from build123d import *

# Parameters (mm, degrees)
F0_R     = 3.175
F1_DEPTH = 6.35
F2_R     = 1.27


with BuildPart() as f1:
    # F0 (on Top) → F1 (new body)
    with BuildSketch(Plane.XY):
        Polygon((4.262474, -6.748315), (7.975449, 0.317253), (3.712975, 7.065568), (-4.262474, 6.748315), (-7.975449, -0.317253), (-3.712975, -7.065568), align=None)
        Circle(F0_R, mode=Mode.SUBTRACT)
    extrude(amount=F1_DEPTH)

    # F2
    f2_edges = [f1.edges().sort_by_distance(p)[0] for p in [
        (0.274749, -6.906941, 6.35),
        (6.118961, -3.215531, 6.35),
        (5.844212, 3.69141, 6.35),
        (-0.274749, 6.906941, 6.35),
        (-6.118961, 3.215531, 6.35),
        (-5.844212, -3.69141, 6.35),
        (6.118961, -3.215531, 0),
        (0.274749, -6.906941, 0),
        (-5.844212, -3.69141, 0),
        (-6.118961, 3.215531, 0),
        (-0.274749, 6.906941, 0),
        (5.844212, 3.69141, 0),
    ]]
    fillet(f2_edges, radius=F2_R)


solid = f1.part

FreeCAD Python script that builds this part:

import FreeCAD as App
import Part
import Sketcher
from FreeCAD import Vector
Q = App.Units.Quantity


def edges_at(feature, points):
    """Names of the edges that pass closest to the given points."""
    edges = feature.Shape.Edges
    near = lambda p: min(range(len(edges)), key=lambda i: edges[i].distToShape(Part.Vertex(*p))[0])
    return sorted({f"Edge{near(p) + 1}" for p in points})

doc = App.newDocument("Part")
body = doc.addObject("PartDesign::Body", "Body")

sketch1 = body.newObject("Sketcher::SketchObject", "Sketch")
sketch1.AttachmentSupport = (doc.getObject("XY_Plane"), [""])
sketch1.MapMode = "FlatFace"
sketch1.addGeometry(Part.LineSegment(Vector(4.3, -6.7, 0), Vector(8, 0.3, 0)), False)
sketch1.addGeometry(Part.LineSegment(Vector(8, 0.3, 0), Vector(3.7, 7.1, 0)), False)
sketch1.addGeometry(Part.LineSegment(Vector(3.7, 7.1, 0), Vector(-4.3, 6.7, 0)), False)
sketch1.addGeometry(Part.LineSegment(Vector(-4.3, 6.7, 0), Vector(-8, -0.3, 0)), False)
sketch1.addGeometry(Part.LineSegment(Vector(-8, -0.3, 0), Vector(-3.7, -7.1, 0)), False)
sketch1.addGeometry(Part.LineSegment(Vector(-3.7, -7.1, 0), Vector(4.3, -6.7, 0)), False)
sketch1.addGeometry(Part.Circle(Vector(0, 0, 0), Vector(0, 0, 1), 3.2), False)
sketch1.addConstraint(Sketcher.Constraint("Coincident", 0, 2, 1, 1))
sketch1.addConstraint(Sketcher.Constraint("Coincident", 1, 2, 2, 1))
sketch1.addConstraint(Sketcher.Constraint("Coincident", 2, 2, 3, 1))
sketch1.addConstraint(Sketcher.Constraint("Coincident", 3, 2, 4, 1))
sketch1.addConstraint(Sketcher.Constraint("Coincident", 4, 2, 5, 1))
sketch1.addConstraint(Sketcher.Constraint("Coincident", 5, 2, 0, 1))
sketch1.addConstraint(Sketcher.Constraint("Coincident", 6, 3, -1, 1))
sketch1.addConstraint(Sketcher.Constraint("Symmetric", 0, 2, 3, 2, -1, 1))
sketch1.addConstraint(Sketcher.Constraint("Symmetric", 1, 2, 4, 2, -1, 1))
sketch1.addConstraint(Sketcher.Constraint("Symmetric", 2, 2, 5, 2, -1, 1))
sketch1.addConstraint(Sketcher.Constraint("Equal", 0, 1))
sketch1.addConstraint(Sketcher.Constraint("Equal", 1, 2))
sketch1.addConstraint(Sketcher.Constraint("Diameter", 6, Q("0.25 in")))
sketch1.addConstraint(Sketcher.Constraint("DistanceX", 2, 2, 4, 2, 0.549499))
sketch1.addConstraint(Sketcher.Constraint("DistanceX", -1, 1, 0, 2, 7.975449))
sketch1.addConstraint(Sketcher.Constraint("DistanceX", 2, 2, 1, 2, 7.975449))
sketch1.addConstraint(Sketcher.Constraint("DistanceY", 0, 2, 2, 2, 6.431062))
pad1 = body.newObject("PartDesign::Pad", "Pad")
pad1.Profile = sketch1
pad1.Length = Q("0.25 in")
doc.recompute()

fillet = body.newObject("PartDesign::Fillet", "Fillet")
fillet.Base = (pad1, edges_at(pad1, [
    (0.275, -6.907, 6.35),
    (6.119, -3.216, 6.35),
    (5.844, 3.691, 6.35),
    (-0.275, 6.907, 6.35),
    (-6.119, 3.216, 6.35),
    (-5.844, -3.691, 6.35),
    (6.119, -3.216, 0),
    (0.275, -6.907, 0),
    (-5.844, -3.691, 0),
    (-6.119, 3.216, 0),
    (-0.275, 6.907, 0),
    (5.844, 3.691, 0),
]))
fillet.Radius = Q("0.05 in")

doc.recompute()
